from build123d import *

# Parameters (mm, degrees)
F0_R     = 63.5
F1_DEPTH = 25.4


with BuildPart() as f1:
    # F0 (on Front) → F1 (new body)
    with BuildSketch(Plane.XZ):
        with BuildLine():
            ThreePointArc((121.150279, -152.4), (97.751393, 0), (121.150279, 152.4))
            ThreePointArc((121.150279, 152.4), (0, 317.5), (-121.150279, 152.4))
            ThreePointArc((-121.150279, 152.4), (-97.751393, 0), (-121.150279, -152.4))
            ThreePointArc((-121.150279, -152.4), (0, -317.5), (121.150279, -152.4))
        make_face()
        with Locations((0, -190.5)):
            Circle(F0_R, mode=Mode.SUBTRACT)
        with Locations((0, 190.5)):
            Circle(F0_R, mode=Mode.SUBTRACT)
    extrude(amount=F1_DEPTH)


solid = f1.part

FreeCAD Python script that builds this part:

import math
import FreeCAD as App
import Part
import Sketcher
from FreeCAD import Vector
Q = App.Units.Quantity

doc = App.newDocument("Part")
params = doc.addObject("Spreadsheet::Sheet", "Params")
for row, (alias, value) in enumerate([
    ("sketch1_diameter", "5 in"),
    ("sketch1_radius", "5 in"),
    ("pad1_length", "1 in"),
], start=1):
    params.set(f"A{row}", alias)
    params.set(f"B{row}", "=" + value)
    params.setAlias(f"B{row}", alias)

body = doc.addObject("PartDesign::Body", "Body")

sketch1 = body.newObject("Sketcher::SketchObject", "Sketch")
sketch1.AttachmentSupport = (doc.getObject("XZ_Plane"), [""])
sketch1.MapMode = "FlatFace"
sketch1.addGeometry(Part.ArcOfCircle(Part.Circle(Vector(605.751386, 0, 0), Vector(0, 0, 1), 507.999993), math.radians(162.542397), math.radians(197.457603)), False)
sketch1.addGeometry(Part.ArcOfCircle(Part.Circle(Vector(0, 190.5, 0), Vector(0, 0, 1), 127), math.radians(-17.457603), math.radians(197.457603)), False)
sketch1.addGeometry(Part.ArcOfCircle(Part.Circle(Vector(-605.751386, 0, 0), Vector(0, 0, 1), 507.999993), math.radians(-17.457603), math.radians(17.457603)), False)
sketch1.addGeometry(Part.ArcOfCircle(Part.Circle(Vector(0, -190.5, 0), Vector(0, 0, 1), 127), math.radians(162.542397), math.radians(377.457603)), False)
sketch1.addGeometry(Part.Circle(Vector(0, -190.5, 0), Vector(0, 0, 1), 63.5), False)
sketch1.addGeometry(Part.Circle(Vector(0, 190.5, 0), Vector(0, 0, 1), 63.5), False)
sketch1.addConstraint(Sketcher.Constraint("Tangent", 0, 1, 1, 1))
sketch1.addConstraint(Sketcher.Constraint("Tangent", 1, 2, 2, 2))
sketch1.addConstraint(Sketcher.Constraint("Tangent", 2, 1, 3, 1))
sketch1.addConstraint(Sketcher.Constraint("Tangent", 3, 2, 0, 2))
sketch1.addConstraint(Sketcher.Constraint("Coincident", 4, 3, 3, 3))
sketch1.addConstraint(Sketcher.Constraint("Coincident", 5, 3, 1, 3))
sketch1.addConstraint(Sketcher.Constraint("Equal", 0, 2))
sketch1.addConstraint(Sketcher.Constraint("Equal", 1, 3))
sketch1.addConstraint(Sketcher.Constraint("Equal", 4, 5))
sketch1.addConstraint(Sketcher.Constraint("Symmetric", 0, 3, 2, 3, -1, 1))
sketch1.addConstraint(Sketcher.Constraint("PointOnObject", 0, 3, -1))
sketch1.addConstraint(Sketcher.Constraint("Diameter", 4, Q("5 in")))
sketch1.addConstraint(Sketcher.Constraint("Radius", 1, Q("5 in")))
sketch1.addConstraint(Sketcher.Constraint("DistanceY", -1, 1, 1, 2, Q("6 in")))
sketch1.addConstraint(Sketcher.Constraint("DistanceY", 3, 3, 1, 3, Q("15 in")))
sketch1.setExpression("Constraints[11]", "Params.sketch1_diameter")
sketch1.setExpression("Constraints[12]", "Params.sketch1_radius")
pad1 = body.newObject("PartDesign::Pad", "Pad")
pad1.Profile = sketch1
pad1.setExpression("Length", "Params.pad1_length")

doc.recompute()
